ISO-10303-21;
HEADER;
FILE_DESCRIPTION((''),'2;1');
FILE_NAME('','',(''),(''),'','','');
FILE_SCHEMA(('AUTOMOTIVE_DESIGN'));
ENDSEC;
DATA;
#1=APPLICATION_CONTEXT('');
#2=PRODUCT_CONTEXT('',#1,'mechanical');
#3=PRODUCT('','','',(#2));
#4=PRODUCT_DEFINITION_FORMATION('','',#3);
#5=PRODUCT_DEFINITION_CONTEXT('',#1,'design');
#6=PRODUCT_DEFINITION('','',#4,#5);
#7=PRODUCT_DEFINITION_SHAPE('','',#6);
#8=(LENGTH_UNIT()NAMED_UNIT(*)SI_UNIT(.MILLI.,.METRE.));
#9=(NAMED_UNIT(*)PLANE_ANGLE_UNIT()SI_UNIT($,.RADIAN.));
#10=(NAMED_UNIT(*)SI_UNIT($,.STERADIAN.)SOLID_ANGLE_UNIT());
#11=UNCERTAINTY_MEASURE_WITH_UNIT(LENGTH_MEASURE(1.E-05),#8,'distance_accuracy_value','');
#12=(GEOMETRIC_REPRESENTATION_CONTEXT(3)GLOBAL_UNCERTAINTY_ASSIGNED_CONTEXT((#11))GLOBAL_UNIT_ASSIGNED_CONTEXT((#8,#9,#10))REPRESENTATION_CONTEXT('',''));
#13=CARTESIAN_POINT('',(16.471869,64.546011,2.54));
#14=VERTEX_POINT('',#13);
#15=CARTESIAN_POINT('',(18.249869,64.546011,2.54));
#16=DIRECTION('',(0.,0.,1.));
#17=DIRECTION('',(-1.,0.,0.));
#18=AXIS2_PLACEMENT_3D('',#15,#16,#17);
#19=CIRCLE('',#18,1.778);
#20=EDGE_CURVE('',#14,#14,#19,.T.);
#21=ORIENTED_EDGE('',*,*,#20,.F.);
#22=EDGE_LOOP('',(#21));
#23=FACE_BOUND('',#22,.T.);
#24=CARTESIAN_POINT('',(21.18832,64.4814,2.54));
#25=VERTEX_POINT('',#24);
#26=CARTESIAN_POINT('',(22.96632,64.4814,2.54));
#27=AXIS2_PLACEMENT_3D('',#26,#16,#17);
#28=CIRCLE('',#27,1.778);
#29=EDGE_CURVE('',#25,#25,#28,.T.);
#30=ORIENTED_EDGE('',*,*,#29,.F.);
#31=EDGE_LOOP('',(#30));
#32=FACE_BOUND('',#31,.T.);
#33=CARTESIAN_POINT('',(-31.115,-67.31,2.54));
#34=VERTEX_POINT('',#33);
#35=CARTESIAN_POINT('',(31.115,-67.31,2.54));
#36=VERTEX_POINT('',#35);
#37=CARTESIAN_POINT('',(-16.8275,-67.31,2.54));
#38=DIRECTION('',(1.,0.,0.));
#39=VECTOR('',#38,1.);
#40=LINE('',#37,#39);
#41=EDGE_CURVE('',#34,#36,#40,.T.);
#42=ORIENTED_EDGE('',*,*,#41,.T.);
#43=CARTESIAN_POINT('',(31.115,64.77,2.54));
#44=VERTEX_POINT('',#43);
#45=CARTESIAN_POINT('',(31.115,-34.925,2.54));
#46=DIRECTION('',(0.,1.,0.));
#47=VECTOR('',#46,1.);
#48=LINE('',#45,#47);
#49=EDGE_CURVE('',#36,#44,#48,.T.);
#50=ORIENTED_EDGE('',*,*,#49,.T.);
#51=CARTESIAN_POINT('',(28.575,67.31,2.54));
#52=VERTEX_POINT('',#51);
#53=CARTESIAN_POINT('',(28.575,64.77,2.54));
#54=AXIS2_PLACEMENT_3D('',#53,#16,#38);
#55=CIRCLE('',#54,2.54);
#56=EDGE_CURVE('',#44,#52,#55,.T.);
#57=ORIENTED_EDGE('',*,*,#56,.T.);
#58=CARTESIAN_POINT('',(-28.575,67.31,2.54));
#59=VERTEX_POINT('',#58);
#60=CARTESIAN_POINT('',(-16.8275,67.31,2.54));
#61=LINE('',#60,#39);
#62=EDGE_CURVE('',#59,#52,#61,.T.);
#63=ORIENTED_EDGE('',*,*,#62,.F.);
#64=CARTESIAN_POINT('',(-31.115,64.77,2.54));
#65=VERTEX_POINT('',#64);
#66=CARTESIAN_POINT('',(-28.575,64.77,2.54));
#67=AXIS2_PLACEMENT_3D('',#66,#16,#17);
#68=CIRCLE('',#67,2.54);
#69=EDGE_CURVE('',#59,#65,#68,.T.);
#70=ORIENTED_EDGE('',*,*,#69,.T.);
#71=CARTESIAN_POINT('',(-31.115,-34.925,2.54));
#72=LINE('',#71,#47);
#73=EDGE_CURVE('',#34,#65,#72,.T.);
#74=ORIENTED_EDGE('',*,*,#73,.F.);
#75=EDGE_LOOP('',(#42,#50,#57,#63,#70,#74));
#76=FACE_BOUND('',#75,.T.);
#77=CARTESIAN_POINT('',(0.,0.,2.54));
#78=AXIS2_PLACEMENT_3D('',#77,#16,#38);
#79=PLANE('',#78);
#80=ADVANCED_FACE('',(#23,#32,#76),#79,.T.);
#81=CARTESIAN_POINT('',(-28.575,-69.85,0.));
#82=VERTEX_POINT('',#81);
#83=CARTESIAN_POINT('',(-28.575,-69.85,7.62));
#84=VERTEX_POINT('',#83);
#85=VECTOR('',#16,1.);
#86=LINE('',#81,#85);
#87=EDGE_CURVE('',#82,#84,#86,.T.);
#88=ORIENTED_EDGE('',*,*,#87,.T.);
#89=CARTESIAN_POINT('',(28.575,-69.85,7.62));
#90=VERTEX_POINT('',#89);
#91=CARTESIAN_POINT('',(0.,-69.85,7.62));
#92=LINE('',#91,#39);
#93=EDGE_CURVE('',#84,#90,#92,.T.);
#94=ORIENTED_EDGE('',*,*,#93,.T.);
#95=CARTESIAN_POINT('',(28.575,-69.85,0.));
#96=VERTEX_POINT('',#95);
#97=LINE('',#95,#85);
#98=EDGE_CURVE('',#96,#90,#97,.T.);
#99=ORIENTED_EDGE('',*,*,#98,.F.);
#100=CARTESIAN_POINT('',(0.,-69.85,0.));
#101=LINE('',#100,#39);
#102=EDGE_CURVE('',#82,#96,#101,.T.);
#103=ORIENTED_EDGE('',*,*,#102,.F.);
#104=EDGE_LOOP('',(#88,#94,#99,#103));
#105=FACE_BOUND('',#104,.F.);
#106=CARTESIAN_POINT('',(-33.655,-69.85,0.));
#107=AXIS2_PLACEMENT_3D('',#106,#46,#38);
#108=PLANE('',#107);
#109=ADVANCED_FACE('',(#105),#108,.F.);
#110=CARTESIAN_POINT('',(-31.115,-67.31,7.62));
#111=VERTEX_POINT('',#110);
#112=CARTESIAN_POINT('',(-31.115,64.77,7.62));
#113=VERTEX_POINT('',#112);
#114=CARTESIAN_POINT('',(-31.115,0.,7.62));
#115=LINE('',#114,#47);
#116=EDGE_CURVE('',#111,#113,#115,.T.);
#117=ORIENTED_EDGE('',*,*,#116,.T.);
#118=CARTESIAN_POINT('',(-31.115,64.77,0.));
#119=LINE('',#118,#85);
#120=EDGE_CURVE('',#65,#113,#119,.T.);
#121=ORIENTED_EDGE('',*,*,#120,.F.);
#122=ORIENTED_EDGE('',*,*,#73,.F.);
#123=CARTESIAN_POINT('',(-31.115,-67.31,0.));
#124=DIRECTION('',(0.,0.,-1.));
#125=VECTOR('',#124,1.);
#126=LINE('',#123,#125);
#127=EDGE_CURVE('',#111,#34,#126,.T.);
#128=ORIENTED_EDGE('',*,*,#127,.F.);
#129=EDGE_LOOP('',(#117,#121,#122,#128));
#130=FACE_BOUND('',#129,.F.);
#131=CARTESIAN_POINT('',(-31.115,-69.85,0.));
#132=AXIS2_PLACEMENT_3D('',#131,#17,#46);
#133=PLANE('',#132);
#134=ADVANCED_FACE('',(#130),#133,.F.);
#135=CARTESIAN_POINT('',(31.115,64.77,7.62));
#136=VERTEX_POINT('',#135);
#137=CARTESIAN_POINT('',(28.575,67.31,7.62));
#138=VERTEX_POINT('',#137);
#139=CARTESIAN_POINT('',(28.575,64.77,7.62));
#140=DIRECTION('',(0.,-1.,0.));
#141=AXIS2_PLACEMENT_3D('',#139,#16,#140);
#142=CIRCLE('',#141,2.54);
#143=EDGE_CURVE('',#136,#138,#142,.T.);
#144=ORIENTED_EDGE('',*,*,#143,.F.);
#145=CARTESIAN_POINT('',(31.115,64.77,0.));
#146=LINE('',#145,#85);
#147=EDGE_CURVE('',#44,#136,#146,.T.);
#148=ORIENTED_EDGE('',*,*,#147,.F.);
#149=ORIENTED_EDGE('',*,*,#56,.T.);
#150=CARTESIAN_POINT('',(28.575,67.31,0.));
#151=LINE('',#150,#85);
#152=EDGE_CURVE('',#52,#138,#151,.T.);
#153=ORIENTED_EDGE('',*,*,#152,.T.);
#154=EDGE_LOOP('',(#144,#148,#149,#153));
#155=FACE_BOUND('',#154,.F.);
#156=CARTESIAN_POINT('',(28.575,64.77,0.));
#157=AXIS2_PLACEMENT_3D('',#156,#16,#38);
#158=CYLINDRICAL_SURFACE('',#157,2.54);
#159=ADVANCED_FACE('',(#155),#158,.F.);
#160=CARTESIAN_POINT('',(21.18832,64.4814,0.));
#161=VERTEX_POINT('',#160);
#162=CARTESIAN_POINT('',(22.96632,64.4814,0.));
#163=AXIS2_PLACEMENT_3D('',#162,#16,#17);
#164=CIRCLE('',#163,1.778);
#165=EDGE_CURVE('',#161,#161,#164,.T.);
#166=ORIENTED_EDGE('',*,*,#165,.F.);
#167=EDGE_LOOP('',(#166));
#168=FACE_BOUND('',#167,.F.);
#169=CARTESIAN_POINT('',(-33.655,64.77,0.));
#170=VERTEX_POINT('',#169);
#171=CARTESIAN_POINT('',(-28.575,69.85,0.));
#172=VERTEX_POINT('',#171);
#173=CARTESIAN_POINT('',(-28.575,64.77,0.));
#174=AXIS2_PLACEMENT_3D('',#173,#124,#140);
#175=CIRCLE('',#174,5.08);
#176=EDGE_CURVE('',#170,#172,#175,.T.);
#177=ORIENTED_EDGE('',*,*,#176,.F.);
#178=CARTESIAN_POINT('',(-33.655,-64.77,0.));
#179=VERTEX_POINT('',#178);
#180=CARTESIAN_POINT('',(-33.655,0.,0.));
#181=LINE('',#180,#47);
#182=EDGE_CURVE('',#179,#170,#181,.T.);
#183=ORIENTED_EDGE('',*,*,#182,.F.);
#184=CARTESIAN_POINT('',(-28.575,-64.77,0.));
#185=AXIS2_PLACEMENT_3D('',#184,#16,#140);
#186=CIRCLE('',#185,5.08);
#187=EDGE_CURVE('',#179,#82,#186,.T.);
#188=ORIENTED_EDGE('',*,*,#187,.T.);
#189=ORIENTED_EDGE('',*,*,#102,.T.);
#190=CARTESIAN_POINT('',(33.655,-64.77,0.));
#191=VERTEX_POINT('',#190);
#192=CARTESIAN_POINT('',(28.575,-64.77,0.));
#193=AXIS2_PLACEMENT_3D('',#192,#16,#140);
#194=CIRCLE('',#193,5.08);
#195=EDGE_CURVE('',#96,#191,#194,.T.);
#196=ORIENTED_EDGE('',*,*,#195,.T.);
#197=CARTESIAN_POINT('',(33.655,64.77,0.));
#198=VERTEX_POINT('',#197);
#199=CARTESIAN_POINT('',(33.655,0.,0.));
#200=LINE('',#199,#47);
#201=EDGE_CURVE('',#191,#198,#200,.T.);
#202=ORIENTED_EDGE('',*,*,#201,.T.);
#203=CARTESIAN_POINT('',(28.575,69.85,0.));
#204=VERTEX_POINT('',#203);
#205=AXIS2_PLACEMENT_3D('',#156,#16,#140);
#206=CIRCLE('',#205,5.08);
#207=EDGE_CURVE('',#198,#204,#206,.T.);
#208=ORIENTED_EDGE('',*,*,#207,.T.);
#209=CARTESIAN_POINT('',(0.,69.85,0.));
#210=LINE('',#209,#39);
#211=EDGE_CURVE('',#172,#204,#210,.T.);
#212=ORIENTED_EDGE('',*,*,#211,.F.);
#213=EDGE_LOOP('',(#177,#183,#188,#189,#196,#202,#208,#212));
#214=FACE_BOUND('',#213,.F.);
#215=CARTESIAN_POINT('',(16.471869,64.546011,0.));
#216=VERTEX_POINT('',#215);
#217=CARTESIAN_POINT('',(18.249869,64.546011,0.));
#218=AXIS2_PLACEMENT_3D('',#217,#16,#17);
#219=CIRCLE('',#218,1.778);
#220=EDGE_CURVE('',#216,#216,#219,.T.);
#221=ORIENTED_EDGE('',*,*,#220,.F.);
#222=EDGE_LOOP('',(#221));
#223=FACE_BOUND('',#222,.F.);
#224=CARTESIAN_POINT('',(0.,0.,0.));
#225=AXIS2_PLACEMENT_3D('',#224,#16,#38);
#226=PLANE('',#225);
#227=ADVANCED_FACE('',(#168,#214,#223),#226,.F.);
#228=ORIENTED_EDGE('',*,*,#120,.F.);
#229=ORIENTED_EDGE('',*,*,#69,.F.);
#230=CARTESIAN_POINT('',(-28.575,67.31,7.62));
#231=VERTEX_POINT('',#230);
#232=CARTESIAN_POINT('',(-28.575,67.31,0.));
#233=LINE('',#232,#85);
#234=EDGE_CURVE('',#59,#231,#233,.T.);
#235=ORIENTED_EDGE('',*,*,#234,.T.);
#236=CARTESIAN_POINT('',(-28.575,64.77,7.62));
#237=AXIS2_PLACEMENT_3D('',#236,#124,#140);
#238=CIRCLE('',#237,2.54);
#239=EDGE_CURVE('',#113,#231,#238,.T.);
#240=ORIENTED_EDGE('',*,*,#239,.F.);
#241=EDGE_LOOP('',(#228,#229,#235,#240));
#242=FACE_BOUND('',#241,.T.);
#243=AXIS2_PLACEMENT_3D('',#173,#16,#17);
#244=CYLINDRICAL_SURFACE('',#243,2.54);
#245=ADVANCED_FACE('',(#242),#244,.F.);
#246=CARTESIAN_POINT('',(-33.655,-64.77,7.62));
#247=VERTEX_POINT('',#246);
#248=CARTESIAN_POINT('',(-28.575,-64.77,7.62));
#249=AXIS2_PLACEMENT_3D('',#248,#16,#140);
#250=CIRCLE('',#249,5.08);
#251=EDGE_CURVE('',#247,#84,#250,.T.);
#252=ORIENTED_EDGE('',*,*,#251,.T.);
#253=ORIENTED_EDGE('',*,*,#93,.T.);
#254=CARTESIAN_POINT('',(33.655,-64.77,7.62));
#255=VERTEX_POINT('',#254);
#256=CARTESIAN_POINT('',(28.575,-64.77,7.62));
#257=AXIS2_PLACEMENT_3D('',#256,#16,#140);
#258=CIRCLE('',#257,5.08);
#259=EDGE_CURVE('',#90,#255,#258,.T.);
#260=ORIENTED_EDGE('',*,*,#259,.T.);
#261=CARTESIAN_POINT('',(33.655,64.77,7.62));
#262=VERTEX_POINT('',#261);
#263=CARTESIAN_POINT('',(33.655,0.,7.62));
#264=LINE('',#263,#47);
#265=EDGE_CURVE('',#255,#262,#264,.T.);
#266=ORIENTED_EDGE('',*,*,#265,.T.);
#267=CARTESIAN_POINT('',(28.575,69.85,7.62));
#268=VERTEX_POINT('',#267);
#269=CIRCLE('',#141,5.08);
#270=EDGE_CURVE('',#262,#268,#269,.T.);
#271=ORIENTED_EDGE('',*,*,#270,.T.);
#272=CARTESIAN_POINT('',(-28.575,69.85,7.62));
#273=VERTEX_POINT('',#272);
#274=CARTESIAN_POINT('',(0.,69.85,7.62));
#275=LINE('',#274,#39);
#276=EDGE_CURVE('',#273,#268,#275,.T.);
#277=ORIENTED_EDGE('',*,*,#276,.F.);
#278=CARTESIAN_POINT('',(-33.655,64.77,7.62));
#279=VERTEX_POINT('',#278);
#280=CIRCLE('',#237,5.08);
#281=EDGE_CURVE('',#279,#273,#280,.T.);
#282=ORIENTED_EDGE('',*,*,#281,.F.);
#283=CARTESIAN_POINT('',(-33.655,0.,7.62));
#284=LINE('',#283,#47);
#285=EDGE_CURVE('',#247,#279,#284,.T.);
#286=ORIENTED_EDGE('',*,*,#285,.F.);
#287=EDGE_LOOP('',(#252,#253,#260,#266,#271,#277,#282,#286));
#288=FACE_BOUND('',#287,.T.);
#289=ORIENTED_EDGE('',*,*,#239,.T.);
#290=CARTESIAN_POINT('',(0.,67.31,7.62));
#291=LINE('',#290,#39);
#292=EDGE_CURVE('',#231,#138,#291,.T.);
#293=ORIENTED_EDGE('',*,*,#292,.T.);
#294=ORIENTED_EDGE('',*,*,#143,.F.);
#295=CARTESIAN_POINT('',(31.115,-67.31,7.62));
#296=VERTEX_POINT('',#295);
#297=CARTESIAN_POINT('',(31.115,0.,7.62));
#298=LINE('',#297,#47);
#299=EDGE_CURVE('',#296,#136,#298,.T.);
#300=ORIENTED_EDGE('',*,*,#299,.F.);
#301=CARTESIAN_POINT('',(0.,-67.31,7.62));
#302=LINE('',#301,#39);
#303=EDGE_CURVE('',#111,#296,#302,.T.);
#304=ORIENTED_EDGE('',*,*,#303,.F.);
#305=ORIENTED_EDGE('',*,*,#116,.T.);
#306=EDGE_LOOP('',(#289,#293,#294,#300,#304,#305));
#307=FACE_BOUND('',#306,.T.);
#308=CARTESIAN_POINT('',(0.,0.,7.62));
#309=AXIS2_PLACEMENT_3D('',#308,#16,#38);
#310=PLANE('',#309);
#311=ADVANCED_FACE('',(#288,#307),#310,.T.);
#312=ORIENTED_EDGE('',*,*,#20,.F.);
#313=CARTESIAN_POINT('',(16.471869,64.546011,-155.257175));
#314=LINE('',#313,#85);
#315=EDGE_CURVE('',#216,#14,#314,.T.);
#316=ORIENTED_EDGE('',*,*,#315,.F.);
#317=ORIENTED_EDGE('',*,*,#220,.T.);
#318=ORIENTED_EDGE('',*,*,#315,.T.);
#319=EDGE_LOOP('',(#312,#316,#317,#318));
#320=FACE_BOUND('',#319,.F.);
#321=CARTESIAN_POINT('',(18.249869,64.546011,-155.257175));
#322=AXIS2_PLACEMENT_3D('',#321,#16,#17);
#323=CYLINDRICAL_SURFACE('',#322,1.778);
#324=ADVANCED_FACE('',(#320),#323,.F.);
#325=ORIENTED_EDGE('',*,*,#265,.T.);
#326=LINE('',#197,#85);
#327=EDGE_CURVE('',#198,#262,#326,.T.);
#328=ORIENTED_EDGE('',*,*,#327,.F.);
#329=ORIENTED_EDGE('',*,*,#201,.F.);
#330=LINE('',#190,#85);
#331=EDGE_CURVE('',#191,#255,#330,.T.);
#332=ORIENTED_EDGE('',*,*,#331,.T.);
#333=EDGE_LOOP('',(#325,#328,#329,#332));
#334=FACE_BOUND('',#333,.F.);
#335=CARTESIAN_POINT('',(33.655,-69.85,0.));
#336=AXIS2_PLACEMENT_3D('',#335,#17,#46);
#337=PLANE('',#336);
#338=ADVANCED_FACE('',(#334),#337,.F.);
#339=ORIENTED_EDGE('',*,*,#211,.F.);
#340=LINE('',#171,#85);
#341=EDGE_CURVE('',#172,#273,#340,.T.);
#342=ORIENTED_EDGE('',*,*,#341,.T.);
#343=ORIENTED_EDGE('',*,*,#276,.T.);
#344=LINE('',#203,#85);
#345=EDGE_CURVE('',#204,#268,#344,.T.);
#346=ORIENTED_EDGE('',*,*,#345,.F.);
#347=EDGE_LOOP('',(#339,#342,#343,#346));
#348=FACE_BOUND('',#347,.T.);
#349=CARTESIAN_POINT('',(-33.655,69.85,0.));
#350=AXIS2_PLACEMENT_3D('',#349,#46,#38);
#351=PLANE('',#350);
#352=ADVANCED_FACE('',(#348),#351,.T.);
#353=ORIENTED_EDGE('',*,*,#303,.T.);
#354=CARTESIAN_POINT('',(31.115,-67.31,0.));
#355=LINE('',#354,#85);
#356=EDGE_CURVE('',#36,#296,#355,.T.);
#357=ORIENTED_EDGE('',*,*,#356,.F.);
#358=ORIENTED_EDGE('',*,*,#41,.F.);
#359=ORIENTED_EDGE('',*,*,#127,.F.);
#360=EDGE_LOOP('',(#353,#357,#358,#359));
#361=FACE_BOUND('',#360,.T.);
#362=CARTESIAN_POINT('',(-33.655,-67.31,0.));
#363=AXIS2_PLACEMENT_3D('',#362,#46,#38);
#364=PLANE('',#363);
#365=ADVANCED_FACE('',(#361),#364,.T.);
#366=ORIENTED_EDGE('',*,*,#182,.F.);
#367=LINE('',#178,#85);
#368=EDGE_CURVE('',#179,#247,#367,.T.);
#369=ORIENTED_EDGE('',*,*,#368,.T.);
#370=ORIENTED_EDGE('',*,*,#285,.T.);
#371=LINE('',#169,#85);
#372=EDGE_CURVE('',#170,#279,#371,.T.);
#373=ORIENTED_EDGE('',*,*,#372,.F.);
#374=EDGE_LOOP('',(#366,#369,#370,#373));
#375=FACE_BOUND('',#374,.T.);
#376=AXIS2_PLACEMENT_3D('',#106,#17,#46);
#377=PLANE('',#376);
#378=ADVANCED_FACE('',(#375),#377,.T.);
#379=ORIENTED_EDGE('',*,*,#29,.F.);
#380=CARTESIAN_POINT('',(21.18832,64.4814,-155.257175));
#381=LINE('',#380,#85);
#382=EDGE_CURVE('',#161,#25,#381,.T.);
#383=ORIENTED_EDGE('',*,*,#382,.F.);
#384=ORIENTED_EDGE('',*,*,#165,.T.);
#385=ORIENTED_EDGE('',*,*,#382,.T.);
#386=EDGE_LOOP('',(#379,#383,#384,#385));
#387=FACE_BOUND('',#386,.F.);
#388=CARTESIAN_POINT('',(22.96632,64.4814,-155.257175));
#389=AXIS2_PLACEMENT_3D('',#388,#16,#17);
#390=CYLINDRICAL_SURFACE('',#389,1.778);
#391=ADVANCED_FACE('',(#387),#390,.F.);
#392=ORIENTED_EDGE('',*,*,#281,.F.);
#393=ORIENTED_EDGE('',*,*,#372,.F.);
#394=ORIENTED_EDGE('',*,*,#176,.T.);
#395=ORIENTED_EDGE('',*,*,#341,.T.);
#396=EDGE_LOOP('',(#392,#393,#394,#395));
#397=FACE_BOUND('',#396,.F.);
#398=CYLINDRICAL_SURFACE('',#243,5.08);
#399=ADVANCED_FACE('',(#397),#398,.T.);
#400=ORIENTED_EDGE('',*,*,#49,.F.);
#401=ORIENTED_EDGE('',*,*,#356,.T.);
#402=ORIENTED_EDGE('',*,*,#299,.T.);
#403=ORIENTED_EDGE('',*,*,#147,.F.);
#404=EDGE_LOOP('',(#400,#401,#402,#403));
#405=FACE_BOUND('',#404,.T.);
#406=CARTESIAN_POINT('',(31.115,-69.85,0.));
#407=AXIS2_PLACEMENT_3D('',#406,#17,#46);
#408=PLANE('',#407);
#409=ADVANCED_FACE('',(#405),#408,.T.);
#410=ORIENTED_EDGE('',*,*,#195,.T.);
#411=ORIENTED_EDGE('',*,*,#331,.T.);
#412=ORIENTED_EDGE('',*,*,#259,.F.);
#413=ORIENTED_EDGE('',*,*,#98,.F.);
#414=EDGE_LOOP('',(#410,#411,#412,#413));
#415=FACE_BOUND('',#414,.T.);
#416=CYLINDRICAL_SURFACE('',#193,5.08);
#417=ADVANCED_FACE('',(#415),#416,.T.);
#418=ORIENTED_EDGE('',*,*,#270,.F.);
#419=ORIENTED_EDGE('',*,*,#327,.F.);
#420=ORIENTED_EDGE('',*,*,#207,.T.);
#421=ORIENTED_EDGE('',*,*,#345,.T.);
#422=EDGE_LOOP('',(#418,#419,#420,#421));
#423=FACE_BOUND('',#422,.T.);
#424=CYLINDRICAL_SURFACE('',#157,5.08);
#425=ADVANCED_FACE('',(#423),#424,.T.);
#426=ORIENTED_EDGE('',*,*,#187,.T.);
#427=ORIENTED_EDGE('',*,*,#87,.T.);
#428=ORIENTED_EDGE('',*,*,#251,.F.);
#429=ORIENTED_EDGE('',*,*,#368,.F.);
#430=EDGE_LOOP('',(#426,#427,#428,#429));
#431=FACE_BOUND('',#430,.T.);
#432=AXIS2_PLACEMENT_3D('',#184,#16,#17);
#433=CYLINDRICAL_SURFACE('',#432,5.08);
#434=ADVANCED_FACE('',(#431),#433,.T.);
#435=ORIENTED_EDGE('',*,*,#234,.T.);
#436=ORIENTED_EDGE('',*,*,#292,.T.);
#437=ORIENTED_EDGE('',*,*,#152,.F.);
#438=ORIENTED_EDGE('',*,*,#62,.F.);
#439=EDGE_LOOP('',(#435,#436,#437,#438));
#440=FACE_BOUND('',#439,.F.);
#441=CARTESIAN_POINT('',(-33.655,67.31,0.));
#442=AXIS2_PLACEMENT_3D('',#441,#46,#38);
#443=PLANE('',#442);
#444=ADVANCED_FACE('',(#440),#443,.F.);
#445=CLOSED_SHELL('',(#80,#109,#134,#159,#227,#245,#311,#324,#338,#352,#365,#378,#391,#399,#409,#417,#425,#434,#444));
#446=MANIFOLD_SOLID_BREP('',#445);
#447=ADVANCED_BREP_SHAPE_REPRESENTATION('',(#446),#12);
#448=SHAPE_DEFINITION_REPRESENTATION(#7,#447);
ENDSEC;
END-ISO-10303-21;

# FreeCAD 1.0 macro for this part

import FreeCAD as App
import Part
import Sketcher
from FreeCAD import Vector
Q = App.Units.Quantity


def edges_at(feature, points):
    """Names of the edges that pass closest to the given points."""
    edges = feature.Shape.Edges
    near = lambda p: min(range(len(edges)), key=lambda i: edges[i].distToShape(Part.Vertex(*p))[0])
    return sorted({f"Edge{near(p) + 1}" for p in points})


def faces_at(feature, points):
    """Names of the faces that lie closest to the given points."""
    faces = feature.Shape.Faces
    near = lambda p: min(range(len(faces)), key=lambda i: faces[i].distToShape(Part.Vertex(*p))[0])
    return sorted({f"Face{near(p) + 1}" for p in points})


def add_polygon(sketch, points):
    """Adds a closed chain of lines whose ends are joined by coincident constraints."""
    first, n = sketch.GeometryCount, len(points)
    for a, b in zip(points, points[1:] + points[:1]):
        sketch.addGeometry(Part.LineSegment(App.Vector(*a, 0), App.Vector(*b, 0)), False)
    for i in range(n):
        sketch.addConstraint(Sketcher.Constraint("Coincident", first + i, 2, first + (i + 1) % n, 1))

doc = App.newDocument("Part")
body = doc.addObject("PartDesign::Body", "Body")

sketch1 = body.newObject("Sketcher::SketchObject", "Sketch")
sketch1.AttachmentSupport = (doc.getObject("XY_Plane"), [""])
sketch1.MapMode = "FlatFace"
add_polygon(sketch1, [(-34, 70), (-34, -70), (34, -70), (34, 70)])
sketch1.addConstraint([
    Sketcher.Constraint("Vertical", 0),
    Sketcher.Constraint("Horizontal", 1),
    Sketcher.Constraint("Vertical", 2),
    Sketcher.Constraint("Horizontal", 3),
    Sketcher.Constraint("Symmetric", 0, 2, 2, 2, -1, 1),
    Sketcher.Constraint("DistanceY", 0, 2, 0, 1, Q("5.5 in")),
    Sketcher.Constraint("DistanceX", 1, 1, 1, 2, Q("2.65 in")),
])
pad1 = body.newObject("PartDesign::Pad", "Pad")
pad1.Profile = sketch1
pad1.Length = Q("0.3 in")
doc.recompute()

fillet = body.newObject("PartDesign::Fillet", "Fillet")
fillet.Base = (pad1, edges_at(pad1, [(33.655, 69.85, 3.81), (-33.655, 69.85, 3.81)]))
fillet.Radius = Q("0.2 in")
doc.recompute()

thickness = body.newObject("PartDesign::Thickness", "Thickness")
thickness.Base = (fillet, faces_at(fillet, [(0, 0, 7.62)]))
thickness.Value = Q("0.1 in")
thickness.Reversed = True
thickness.Join = "Arc"
doc.recompute()

fillet2 = body.newObject("PartDesign::Fillet", "Fillet001")
fillet2.Base = (thickness, edges_at(thickness, [(-33.655, -69.85, 3.81)]))
fillet2.Radius = Q("0.2 in")
doc.recompute()

fillet3 = body.newObject("PartDesign::Fillet", "Fillet002")
fillet3.Base = (fillet2, edges_at(fillet2, [(33.655, -69.85, 3.81)]))
fillet3.Radius = Q("0.2 in")

sketch2 = body.newObject("Sketcher::SketchObject", "Sketch001")
sketch2.AttachmentSupport = (doc.getObject("XY_Plane"), [""])
sketch2.MapMode = "FlatFace"
sketch2.addGeometry(Part.Circle(Vector(18.2, 64.5, 0), Vector(0, 0, 1), 1.8), False)
sketch2.addConstraint([
    Sketcher.Constraint("Diameter", 0, Q("0.14 in")),
    Sketcher.Constraint("DistanceX", -1, 1, 0, 3, Q("18.249869 mm")),
    Sketcher.Constraint("DistanceY", -1, 1, 0, 3, Q("64.546011 mm")),
])
doc.recompute()
hole = body.newObject("PartDesign::Hole", "Hole")
hole.Profile = sketch2
hole.ThreadType = "None"
hole.Diameter = Q("0.14 in")
hole.DepthType = "ThroughAll"
hole.Reversed = True

sketch3 = body.newObject("Sketcher::SketchObject", "Sketch002")
sketch3.AttachmentSupport = (doc.getObject("XY_Plane"), [""])
sketch3.MapMode = "FlatFace"
sketch3.addGeometry(Part.Circle(Vector(23, 64.5, 0), Vector(0, 0, 1), 1.8), False)
sketch3.addConstraint([
    Sketcher.Constraint("Diameter", 0, Q("0.14 in")),
    Sketcher.Constraint("DistanceY", -1, 1, 0, 3, Q("64.4814 mm")),
    Sketcher.Constraint("DistanceX", -1, 1, 0, 3, Q("22.96632 mm")),
])
doc.recompute()
hole2 = body.newObject("PartDesign::Hole", "Hole001")
hole2.Profile = sketch3
hole2.ThreadType = "None"
hole2.Diameter = Q("0.14 in")
hole2.DepthType = "ThroughAll"
hole2.Reversed = True

doc.recompute()
